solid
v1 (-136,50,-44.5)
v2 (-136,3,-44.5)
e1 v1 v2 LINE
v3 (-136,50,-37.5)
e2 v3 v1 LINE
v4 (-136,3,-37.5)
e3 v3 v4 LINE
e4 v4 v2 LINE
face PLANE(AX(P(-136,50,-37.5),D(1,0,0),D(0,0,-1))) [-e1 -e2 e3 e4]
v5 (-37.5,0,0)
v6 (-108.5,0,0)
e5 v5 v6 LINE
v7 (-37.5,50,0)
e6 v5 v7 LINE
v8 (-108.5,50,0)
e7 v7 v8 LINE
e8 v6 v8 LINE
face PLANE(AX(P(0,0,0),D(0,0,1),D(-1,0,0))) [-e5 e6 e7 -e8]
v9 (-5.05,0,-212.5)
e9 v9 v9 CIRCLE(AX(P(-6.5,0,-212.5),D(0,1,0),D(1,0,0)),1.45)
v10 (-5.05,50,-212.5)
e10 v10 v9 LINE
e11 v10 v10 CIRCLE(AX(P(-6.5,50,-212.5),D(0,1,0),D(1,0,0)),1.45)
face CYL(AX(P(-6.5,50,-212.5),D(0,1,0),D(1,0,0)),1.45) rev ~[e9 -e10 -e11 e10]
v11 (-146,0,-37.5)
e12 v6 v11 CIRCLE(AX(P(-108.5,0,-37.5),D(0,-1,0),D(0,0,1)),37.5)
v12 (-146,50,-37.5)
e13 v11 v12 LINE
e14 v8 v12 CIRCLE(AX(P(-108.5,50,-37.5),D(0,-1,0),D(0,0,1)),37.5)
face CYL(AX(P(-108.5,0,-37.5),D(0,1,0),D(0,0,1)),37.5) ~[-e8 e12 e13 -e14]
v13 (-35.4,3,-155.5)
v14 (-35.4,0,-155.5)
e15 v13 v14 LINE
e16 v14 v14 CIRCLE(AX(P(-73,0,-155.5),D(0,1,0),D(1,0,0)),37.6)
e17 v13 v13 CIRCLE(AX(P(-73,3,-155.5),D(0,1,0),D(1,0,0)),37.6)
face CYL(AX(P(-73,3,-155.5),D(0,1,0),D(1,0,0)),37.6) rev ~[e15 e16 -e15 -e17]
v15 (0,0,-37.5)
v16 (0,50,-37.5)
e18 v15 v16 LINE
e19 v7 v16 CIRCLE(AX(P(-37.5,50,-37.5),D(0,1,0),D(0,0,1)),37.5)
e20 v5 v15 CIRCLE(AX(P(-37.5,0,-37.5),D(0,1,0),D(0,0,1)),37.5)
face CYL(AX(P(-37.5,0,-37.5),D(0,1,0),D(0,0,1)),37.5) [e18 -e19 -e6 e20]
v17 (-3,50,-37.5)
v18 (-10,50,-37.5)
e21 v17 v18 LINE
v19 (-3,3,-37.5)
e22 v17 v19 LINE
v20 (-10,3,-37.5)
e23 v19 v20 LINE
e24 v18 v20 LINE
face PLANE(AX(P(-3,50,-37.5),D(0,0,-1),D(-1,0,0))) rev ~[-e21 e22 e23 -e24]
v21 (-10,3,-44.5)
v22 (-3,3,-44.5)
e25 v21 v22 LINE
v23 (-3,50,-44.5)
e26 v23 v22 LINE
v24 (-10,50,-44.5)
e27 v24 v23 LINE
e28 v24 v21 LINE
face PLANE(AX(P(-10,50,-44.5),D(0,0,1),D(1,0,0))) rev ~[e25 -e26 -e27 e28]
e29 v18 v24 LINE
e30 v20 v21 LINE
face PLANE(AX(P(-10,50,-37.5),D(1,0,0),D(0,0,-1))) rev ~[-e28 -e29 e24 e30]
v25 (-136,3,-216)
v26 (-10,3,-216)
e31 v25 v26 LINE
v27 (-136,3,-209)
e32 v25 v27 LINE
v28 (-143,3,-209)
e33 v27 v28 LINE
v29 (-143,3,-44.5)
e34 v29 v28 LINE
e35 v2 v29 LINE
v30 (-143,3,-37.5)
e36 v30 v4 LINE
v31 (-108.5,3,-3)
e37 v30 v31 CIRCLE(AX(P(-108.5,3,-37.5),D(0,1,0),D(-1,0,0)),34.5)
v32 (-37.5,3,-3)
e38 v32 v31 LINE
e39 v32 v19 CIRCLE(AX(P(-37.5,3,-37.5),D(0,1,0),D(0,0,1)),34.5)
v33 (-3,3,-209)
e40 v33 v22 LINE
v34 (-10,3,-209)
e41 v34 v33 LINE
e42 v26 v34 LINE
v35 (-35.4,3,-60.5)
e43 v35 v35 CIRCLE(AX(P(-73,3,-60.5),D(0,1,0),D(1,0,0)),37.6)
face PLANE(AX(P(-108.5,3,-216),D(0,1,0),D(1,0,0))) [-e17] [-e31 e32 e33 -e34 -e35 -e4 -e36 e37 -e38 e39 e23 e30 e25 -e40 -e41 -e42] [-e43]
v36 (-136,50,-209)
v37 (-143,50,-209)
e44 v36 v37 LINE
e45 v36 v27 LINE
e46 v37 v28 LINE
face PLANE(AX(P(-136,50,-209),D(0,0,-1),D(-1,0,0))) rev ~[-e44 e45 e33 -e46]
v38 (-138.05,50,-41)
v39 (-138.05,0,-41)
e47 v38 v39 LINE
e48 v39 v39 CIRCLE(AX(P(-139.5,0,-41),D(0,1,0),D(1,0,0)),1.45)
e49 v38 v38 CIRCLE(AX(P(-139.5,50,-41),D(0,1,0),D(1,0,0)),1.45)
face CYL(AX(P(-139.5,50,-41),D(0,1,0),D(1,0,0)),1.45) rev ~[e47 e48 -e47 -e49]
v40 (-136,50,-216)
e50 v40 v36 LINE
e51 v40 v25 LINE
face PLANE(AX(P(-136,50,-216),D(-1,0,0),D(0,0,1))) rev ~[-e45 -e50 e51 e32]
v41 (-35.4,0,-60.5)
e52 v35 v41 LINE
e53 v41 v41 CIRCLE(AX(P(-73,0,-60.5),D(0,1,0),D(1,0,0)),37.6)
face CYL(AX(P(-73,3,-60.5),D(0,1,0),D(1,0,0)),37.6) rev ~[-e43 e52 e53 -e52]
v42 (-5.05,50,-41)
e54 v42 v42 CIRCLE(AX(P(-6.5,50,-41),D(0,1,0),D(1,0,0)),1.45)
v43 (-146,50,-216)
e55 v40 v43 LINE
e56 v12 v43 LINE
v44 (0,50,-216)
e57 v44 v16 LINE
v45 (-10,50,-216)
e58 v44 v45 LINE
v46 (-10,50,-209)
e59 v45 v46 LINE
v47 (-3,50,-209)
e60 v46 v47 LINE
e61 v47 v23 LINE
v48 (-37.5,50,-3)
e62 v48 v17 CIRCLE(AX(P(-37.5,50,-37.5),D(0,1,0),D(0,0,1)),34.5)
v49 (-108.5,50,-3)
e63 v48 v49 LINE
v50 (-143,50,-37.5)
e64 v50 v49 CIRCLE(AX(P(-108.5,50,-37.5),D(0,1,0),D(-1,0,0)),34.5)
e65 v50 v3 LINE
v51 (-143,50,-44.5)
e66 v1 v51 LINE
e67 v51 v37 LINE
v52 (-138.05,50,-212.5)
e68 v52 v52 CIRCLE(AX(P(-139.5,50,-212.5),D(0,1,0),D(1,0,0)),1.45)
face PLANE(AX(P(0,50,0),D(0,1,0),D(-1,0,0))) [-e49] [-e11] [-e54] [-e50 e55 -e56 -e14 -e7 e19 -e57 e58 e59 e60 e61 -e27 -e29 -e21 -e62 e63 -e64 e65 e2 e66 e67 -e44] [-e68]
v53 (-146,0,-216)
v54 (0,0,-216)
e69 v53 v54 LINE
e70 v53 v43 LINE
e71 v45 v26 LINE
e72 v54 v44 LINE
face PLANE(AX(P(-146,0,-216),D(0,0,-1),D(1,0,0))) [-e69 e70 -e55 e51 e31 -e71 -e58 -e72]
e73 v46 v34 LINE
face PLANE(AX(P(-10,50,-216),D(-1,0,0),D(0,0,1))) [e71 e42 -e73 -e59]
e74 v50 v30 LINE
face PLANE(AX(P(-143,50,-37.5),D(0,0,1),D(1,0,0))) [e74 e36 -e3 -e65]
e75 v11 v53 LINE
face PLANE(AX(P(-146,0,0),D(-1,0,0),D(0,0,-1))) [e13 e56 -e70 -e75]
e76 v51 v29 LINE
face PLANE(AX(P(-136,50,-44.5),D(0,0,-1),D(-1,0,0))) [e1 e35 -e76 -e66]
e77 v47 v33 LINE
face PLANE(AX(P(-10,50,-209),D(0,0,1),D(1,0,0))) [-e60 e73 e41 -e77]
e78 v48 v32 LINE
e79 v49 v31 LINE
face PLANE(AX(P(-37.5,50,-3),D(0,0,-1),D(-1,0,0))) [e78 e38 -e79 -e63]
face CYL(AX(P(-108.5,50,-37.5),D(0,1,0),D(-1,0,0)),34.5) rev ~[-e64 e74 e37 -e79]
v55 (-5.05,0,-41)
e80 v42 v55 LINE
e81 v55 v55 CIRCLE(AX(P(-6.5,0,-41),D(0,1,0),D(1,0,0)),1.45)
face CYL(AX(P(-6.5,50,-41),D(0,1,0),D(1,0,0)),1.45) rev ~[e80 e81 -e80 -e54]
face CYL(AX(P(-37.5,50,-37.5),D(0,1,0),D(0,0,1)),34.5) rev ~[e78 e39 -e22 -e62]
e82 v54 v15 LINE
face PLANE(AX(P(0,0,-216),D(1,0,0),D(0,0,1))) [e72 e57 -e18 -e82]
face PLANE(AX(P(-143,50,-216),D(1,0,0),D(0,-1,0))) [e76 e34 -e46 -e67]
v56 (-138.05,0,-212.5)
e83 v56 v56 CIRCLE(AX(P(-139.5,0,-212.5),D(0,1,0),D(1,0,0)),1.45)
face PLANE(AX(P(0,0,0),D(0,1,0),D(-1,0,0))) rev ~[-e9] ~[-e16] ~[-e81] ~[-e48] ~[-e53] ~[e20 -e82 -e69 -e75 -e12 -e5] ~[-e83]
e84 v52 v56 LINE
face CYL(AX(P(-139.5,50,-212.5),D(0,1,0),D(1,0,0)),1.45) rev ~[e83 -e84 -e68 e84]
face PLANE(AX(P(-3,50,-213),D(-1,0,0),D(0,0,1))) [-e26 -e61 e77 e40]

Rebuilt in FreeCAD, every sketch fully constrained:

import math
import FreeCAD as App
import Part
import Sketcher
from FreeCAD import Vector
Q = App.Units.Quantity


def edges_at(feature, points):
    """Names of the edges that pass closest to the given points."""
    edges = feature.Shape.Edges
    near = lambda p: min(range(len(edges)), key=lambda i: edges[i].distToShape(Part.Vertex(*p))[0])
    return sorted({f"Edge{near(p) + 1}" for p in points})


def add_polygon(sketch, points):
    """Adds a closed chain of lines whose ends are joined by coincident constraints."""
    first, n = sketch.GeometryCount, len(points)
    for a, b in zip(points, points[1:] + points[:1]):
        sketch.addGeometry(Part.LineSegment(App.Vector(*a, 0), App.Vector(*b, 0)), False)
    for i in range(n):
        sketch.addConstraint(Sketcher.Constraint("Coincident", first + i, 2, first + (i + 1) % n, 1))

doc = App.newDocument("Part")
body = doc.addObject("PartDesign::Body", "Body")

sketch1 = body.newObject("Sketcher::SketchObject", "Sketch")
sketch1.AttachmentSupport = (doc.getObject("XZ_Plane"), [""])
sketch1.MapMode = "FlatFace"
add_polygon(sketch1, [(-146, 0), (0, 0), (0, -216), (-146, -216)])
sketch1.addConstraint([
    Sketcher.Constraint("Horizontal", 0),
    Sketcher.Constraint("Vertical", 1),
    Sketcher.Constraint("Horizontal", 2),
    Sketcher.Constraint("Vertical", 3),
    Sketcher.Constraint("Coincident", 0, 2, -1, 1),
    Sketcher.Constraint("DistanceX", 0, 1, 0, 2, Q("146 mm")),
    Sketcher.Constraint("DistanceY", 1, 2, 1, 1, Q("216 mm")),
])
pad1 = body.newObject("PartDesign::Pad", "Pad")
pad1.Profile = sketch1
pad1.Length = 50
pad1.Reversed = True
doc.recompute()

fillet = body.newObject("PartDesign::Fillet", "Fillet")
fillet.Base = (pad1, edges_at(pad1, [(-146, 25, 0), (0, 25, 0)]))
fillet.Radius = 37.5

sketch2 = body.newObject("Sketcher::SketchObject", "Sketch001")
sketch2.AttachmentSupport = (doc.getObject("XZ_Plane"), [""])
sketch2.MapMode = "FlatFace"
sketch2.AttachmentOffset = App.Placement(Vector(0, 0, -50), App.Rotation())
sketch2.addGeometry([
    Part.LineSegment(Vector(-3, -213, 0), Vector(-143, -213, 0)),
    Part.LineSegment(Vector(-143, -213, 0), Vector(-143, -37.5, 0)),
    Part.ArcOfCircle(Part.Circle(Vector(-108.5, -37.5, 0), Vector(0, 0, 1), 34.5), math.radians(90), math.radians(180)),
    Part.LineSegment(Vector(-108.5, -3, 0), Vector(-37.5, -3, 0)),
    Part.ArcOfCircle(Part.Circle(Vector(-37.5, -37.5, 0), Vector(0, 0, 1), 34.5), math.radians(0), math.radians(90)),
    Part.LineSegment(Vector(-3, -37.5, 0), Vector(-3, -213, 0)),
], False)
sketch2.addConstraint([
    Sketcher.Constraint("Coincident", 0, 2, 1, 1),
    Sketcher.Constraint("Tangent", 1, 2, 2, 2),
    Sketcher.Constraint("Tangent", 2, 1, 3, 1),
    Sketcher.Constraint("Tangent", 3, 2, 4, 2),
    Sketcher.Constraint("Tangent", 4, 1, 5, 1),
    Sketcher.Constraint("Coincident", 5, 2, 0, 1),
    Sketcher.Constraint("Horizontal", 0),
    Sketcher.Constraint("Vertical", 1),
    Sketcher.Constraint("Horizontal", 3),
    Sketcher.Constraint("Vertical", 5),
    Sketcher.Constraint("Equal", 2, 4),
    Sketcher.Constraint("DistanceY", 2, 1, -1, 1, Q("3 mm")),
    Sketcher.Constraint("DistanceX", 4, 1, -1, 1, Q("3 mm")),
    Sketcher.Constraint("DistanceY", 2, 3, -1, 1, Q("37.5 mm")),
    Sketcher.Constraint("DistanceX", 0, 2, 0, 1, Q("140 mm")),
    Sketcher.Constraint("DistanceY", 1, 1, 1, 2, Q("175.5 mm")),
])
pocket1 = body.newObject("PartDesign::Pocket", "Pocket")
pocket1.Profile = sketch2
pocket1.Length = 47
pocket1.Reversed = True

sketch3 = body.newObject("Sketcher::SketchObject", "Sketch002")
sketch3.AttachmentSupport = (doc.getObject("XZ_Plane"), [""])
sketch3.MapMode = "FlatFace"
sketch3.AttachmentOffset = App.Placement(Vector(0, 0, -3), App.Rotation())
sketch3.addGeometry([
    Part.Circle(Vector(-73, -60.5, 0), Vector(0, 0, 1), 37.6),
    Part.Circle(Vector(-73, -155.5, 0), Vector(0, 0, 1), 37.6),
], False)
sketch3.addConstraint([
    Sketcher.Constraint("Equal", 0, 1),
    Sketcher.Constraint("Vertical", 0, 3, 1, 3),
    Sketcher.Constraint("Diameter", 0, Q("75.2 mm")),
    Sketcher.Constraint("DistanceY", 1, 3, 0, 3, Q("95 mm")),
    Sketcher.Constraint("DistanceX", 0, 3, -1, 1, Q("73 mm")),
    Sketcher.Constraint("DistanceY", 0, 3, -1, 1, Q("60.5 mm")),
])
pocket2 = body.newObject("PartDesign::Pocket", "Pocket001")
pocket2.Profile = sketch3
pocket2.Length = 47
pocket2.Reversed = True

sketch4 = body.newObject("Sketcher::SketchObject", "Sketch003")
sketch4.AttachmentSupport = (doc.getObject("XY_Plane"), [""])
sketch4.MapMode = "FlatFace"
sketch4.AttachmentOffset = App.Placement(Vector(0, 0, -216), App.Rotation())
add_polygon(sketch4, [(-143, 50), (-3, 50), (-3, 3), (-143, 3)])
sketch4.addConstraint([
    Sketcher.Constraint("Horizontal", 0),
    Sketcher.Constraint("Vertical", 1),
    Sketcher.Constraint("Horizontal", 2),
    Sketcher.Constraint("Vertical", 3),
    Sketcher.Constraint("DistanceX", 0, 1, 0, 2, Q("140 mm")),
    Sketcher.Constraint("DistanceY", 1, 2, 1, 1, Q("47 mm")),
    Sketcher.Constraint("DistanceX", 0, 2, -1, 1, Q("3 mm")),
    Sketcher.Constraint("DistanceY", -1, 1, 0, 2, Q("50 mm")),
])
pocket3 = body.newObject("PartDesign::Pocket", "Pocket002")
pocket3.Profile = sketch4
pocket3.Length = 3
pocket3.Reversed = True

sketch5 = body.newObject("Sketcher::SketchObject", "Sketch004")
sketch5.AttachmentSupport = (doc.getObject("XZ_Plane"), [""])
sketch5.MapMode = "FlatFace"
sketch5.AttachmentOffset = App.Placement(Vector(0, 0, -50), App.Rotation())
add_polygon(sketch5, [(-143, -44.5), (-143, -37.5), (-136, -37.5), (-136, -44.5)])
add_polygon(sketch5, [(-143, -216), (-143, -209), (-136, -209), (-136, -216)])
add_polygon(sketch5, [(-10, -209), (-3, -209), (-3, -216), (-10, -216)])
add_polygon(sketch5, [(-10, -37.5), (-3, -37.5), (-3, -44.5), (-10, -44.5)])
sketch5.addConstraint([
    Sketcher.Constraint("Vertical", 0),
    Sketcher.Constraint("Horizontal", 1),
    Sketcher.Constraint("Vertical", 2),
    Sketcher.Constraint("Horizontal", 3),
    Sketcher.Constraint("Vertical", 4),
    Sketcher.Constraint("Horizontal", 5),
    Sketcher.Constraint("Vertical", 6),
    Sketcher.Constraint("Horizontal", 7),
    Sketcher.Constraint("Horizontal", 8),
    Sketcher.Constraint("Vertical", 9),
    Sketcher.Constraint("Horizontal", 10),
    Sketcher.Constraint("Vertical", 11),
    Sketcher.Constraint("Horizontal", 12),
    Sketcher.Constraint("Vertical", 13),
    Sketcher.Constraint("Horizontal", 14),
    Sketcher.Constraint("Vertical", 15),
    Sketcher.Constraint("Horizontal", 5, 2, 8, 2),
    Sketcher.Constraint("Horizontal", 7, 2, 9, 2),
    Sketcher.Constraint("Horizontal", 1, 2, 12, 2),
    Sketcher.Constraint("Horizontal", 3, 2, 13, 2),
    Sketcher.Constraint("Vertical", 3, 2, 4, 2),
    Sketcher.Constraint("Vertical", 2, 2, 5, 2),
    Sketcher.Constraint("Vertical", 9, 2, 12, 2),
    Sketcher.Constraint("Vertical", 11, 2, 14, 2),
    Sketcher.Constraint("Equal", 7, 8),
    Sketcher.Constraint("Equal", 14, 0),
    Sketcher.Constraint("Equal", 2, 4),
    Sketcher.Constraint("DistanceX", 1, 1, 1, 2, Q("7 mm")),
    Sketcher.Constraint("DistanceX", 0, 2, -1, 1, Q("143 mm")),
    Sketcher.Constraint("DistanceY", 4, 2, -1, 1, Q("209 mm")),
    Sketcher.Constraint("DistanceX", 8, 2, -1, 1, Q("3 mm")),
    Sketcher.Constraint("DistanceY", 0, 2, -1, 1, Q("37.5 mm")),
])
pad2 = body.newObject("PartDesign::Pad", "Pad001")
pad2.Profile = sketch5
pad2.Length = 50

sketch6 = body.newObject("Sketcher::SketchObject", "Sketch005")
sketch6.AttachmentSupport = (doc.getObject("XZ_Plane"), [""])
sketch6.MapMode = "FlatFace"
sketch6.AttachmentOffset = App.Placement(Vector(0, 0, -50), App.Rotation())
sketch6.addGeometry([
    Part.Circle(Vector(-139.5, -41, 0), Vector(0, 0, 1), 1.45),
    Part.Circle(Vector(-139.5, -212.5, 0), Vector(0, 0, 1), 1.45),
    Part.Circle(Vector(-6.5, -212.5, 0), Vector(0, 0, 1), 1.45),
    Part.Circle(Vector(-6.5, -41, 0), Vector(0, 0, 1), 1.45),
], False)
sketch6.addConstraint([
    Sketcher.Constraint("Equal", 0, 1),
    Sketcher.Constraint("Equal", 1, 2),
    Sketcher.Constraint("Equal", 2, 3),
    Sketcher.Constraint("Horizontal", 1, 3, 2, 3),
    Sketcher.Constraint("Horizontal", 0, 3, 3, 3),
    Sketcher.Constraint("Vertical", 0, 3, 1, 3),
    Sketcher.Constraint("Vertical", 2, 3, 3, 3),
    Sketcher.Constraint("Diameter", 0, Q("2.9 mm")),
    Sketcher.Constraint("DistanceY", 0, 3, -1, 1, Q("41 mm")),
    Sketcher.Constraint("DistanceX", 1, 3, 2, 3, Q("133 mm")),
    Sketcher.Constraint("DistanceX", 0, 3, -1, 1, Q("139.5 mm")),
    Sketcher.Constraint("DistanceY", 1, 3, -1, 1, Q("212.5 mm")),
])
pocket4 = body.newObject("PartDesign::Pocket", "Pocket003")
pocket4.Profile = sketch6
pocket4.Length = 50
pocket4.Reversed = True

doc.recompute()
